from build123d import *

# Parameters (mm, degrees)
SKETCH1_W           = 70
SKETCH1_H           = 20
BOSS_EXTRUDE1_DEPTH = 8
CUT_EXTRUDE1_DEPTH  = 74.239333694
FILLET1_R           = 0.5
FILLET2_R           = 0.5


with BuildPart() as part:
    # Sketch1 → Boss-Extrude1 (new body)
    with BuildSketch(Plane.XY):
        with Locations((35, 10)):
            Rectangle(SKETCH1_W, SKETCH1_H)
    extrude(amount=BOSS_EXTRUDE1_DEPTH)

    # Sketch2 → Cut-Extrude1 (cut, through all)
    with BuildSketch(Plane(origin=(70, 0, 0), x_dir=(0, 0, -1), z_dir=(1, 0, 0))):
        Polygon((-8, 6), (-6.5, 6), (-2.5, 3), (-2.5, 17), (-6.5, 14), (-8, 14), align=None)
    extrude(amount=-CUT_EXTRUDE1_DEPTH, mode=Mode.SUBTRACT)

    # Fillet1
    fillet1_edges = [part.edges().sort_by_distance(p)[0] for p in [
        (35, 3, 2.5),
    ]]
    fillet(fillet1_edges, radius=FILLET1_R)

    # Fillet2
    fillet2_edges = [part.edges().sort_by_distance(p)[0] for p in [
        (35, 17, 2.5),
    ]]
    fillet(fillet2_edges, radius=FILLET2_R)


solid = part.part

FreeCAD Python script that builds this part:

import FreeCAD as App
import Part
import Sketcher
from FreeCAD import Vector


def edges_at(feature, points):
    """Names of the edges that pass closest to the given points."""
    edges = feature.Shape.Edges
    near = lambda p: min(range(len(edges)), key=lambda i: edges[i].distToShape(Part.Vertex(*p))[0])
    return sorted({f"Edge{near(p) + 1}" for p in points})


def add_polygon(sketch, points):
    """Adds a closed chain of lines whose ends are joined by coincident constraints."""
    first, n = sketch.GeometryCount, len(points)
    for a, b in zip(points, points[1:] + points[:1]):
        sketch.addGeometry(Part.LineSegment(App.Vector(*a, 0), App.Vector(*b, 0)), False)
    for i in range(n):
        sketch.addConstraint(Sketcher.Constraint("Coincident", first + i, 2, first + (i + 1) % n, 1))

doc = App.newDocument("Part")
params = doc.addObject("Spreadsheet::Sheet", "Params")
for row, (alias, value) in enumerate([
    ("sketch1_width", "70 mm"),
    ("sketch1_height", "20 mm"),
    ("pad1_length", "8 mm"),
    ("sketch2_width", "14 mm"),
    ("sketch2_width2", "8 mm"),
    ("sketch2_length", "5 mm"),
    ("sketch2_height", "1.5 mm"),
    ("fillet_radius", "0.5 mm"),
    ("fillet2_radius", "0.5 mm"),
], start=1):
    params.set(f"A{row}", alias)
    params.set(f"B{row}", "=" + value)
    params.setAlias(f"B{row}", alias)

body = doc.addObject("PartDesign::Body", "Body")

# Sketch on XY plane
sketch1 = doc.addObject("Sketcher::SketchObject", "Sketch")
body.addObject(sketch1)
sketch1.AttachmentSupport = (doc.XY_Plane, [""])
sketch1.MapMode = "FlatFace"
add_polygon(sketch1, [(0, 20), (0, 0), (70, 0), (70, 20)])  # lines 0-3
sketch1.addConstraint([
    Sketcher.Constraint("Vertical", 0),
    Sketcher.Constraint("Horizontal", 1),
    Sketcher.Constraint("Vertical", 2),
    Sketcher.Constraint("Horizontal", 3),
    Sketcher.Constraint("Coincident", 0, 2, -1, 1),
    Sketcher.Constraint("DistanceX", 1, 1, 1, 2, 70.0),
    Sketcher.Constraint("DistanceY", 0, 2, 0, 1, 20.0),
])
sketch1.setExpression("Constraints[9]", "Params.sketch1_width")
sketch1.setExpression("Constraints[10]", "Params.sketch1_height")
pad1 = doc.addObject("PartDesign::Pad", "Pad")
body.addObject(pad1)
pad1.Profile = sketch1
pad1.setExpression("Length", "Params.pad1_length")

# Sketch on YZ plane
sketch2 = doc.addObject("Sketcher::SketchObject", "Sketch001")
body.addObject(sketch2)
sketch2.AttachmentSupport = (doc.YZ_Plane, [""])
sketch2.MapMode = "FlatFace"
sketch2.AttachmentOffset = App.Placement(Vector(0, 0, 70), App.Rotation())
add_polygon(sketch2, [(6, 8), (6, 6.5), (3, 2.5), (17, 2.5), (14, 6.5), (14, 8)])  # lines 0-5
sketch2.addConstraint([
    Sketcher.Constraint("Vertical", 0),
    Sketcher.Constraint("Horizontal", 2),
    Sketcher.Constraint("Vertical", 4),
    Sketcher.Constraint("Horizontal", 5),
    Sketcher.Constraint("Horizontal", 0, 2, 3, 2),
    Sketcher.Constraint("Equal", 1, 3),
    Sketcher.Constraint("DistanceX", 2, 1, 2, 2, 14.0),
    Sketcher.Constraint("DistanceX", 5, 2, 5, 1, 8.0),
    Sketcher.Constraint("Distance", 1, 5.0),
    Sketcher.Constraint("DistanceY", 0, 2, 0, 1, 1.5),
    Sketcher.Constraint("DistanceX", -1, 1, 0, 2, 6.0),
    Sketcher.Constraint("DistanceY", -1, 1, 4, 2, 8.0),
])
sketch2.setExpression("Constraints[12]", "Params.sketch2_width")
sketch2.setExpression("Constraints[13]", "Params.sketch2_width2")
sketch2.setExpression("Constraints[14]", "Params.sketch2_length")
sketch2.setExpression("Constraints[15]", "Params.sketch2_height")
pocket1 = doc.addObject("PartDesign::Pocket", "Pocket")
body.addObject(pocket1)
pocket1.Profile = sketch2
pocket1.Type = "ThroughAll"
doc.recompute()

fillet = doc.addObject("PartDesign::Fillet", "Fillet")
body.addObject(fillet)
fillet.Base = (pocket1, edges_at(pocket1, [(35, 3, 2.5)]))
fillet.setExpression("Radius", "Params.fillet_radius")
doc.recompute()

fillet2 = doc.addObject("PartDesign::Fillet", "Fillet001")
body.addObject(fillet2)
fillet2.Base = (fillet, edges_at(fillet, [(35, 17, 2.5)]))
fillet2.setExpression("Radius", "Params.fillet2_radius")

doc.recompute()
